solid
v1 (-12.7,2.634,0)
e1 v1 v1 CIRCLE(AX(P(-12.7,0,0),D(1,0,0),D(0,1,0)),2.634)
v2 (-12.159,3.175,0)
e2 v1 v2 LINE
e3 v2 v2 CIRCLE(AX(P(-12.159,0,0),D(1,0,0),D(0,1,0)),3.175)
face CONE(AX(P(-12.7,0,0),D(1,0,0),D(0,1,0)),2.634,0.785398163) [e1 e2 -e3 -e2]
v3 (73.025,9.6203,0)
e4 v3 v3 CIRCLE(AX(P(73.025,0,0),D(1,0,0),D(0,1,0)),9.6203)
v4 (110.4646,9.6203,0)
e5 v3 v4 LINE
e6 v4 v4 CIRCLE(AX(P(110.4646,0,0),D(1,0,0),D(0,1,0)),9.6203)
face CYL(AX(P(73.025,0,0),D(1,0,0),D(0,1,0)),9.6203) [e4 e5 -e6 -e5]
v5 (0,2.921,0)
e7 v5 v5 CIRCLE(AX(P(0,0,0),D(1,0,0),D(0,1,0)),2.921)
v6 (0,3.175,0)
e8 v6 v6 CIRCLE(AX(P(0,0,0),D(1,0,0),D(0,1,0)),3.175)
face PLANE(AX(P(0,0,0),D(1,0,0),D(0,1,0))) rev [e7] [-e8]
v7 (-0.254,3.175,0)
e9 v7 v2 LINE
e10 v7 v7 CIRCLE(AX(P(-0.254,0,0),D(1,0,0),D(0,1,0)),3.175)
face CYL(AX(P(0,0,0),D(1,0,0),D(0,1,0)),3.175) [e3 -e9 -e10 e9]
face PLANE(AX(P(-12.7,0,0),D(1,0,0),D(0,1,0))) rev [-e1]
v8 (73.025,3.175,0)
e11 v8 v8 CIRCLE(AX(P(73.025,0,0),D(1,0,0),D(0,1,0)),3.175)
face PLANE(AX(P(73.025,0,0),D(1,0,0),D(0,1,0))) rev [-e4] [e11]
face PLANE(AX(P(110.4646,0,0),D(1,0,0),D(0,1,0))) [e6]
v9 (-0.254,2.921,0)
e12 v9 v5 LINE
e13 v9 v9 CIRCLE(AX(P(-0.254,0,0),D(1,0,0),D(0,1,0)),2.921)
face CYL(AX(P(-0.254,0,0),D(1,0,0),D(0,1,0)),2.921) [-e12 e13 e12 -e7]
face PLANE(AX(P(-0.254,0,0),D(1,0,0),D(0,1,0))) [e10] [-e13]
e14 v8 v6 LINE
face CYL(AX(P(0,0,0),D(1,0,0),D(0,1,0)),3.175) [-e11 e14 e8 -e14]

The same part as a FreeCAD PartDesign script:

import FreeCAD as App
import Part
import Sketcher
Q = App.Units.Quantity

doc = App.newDocument("Part")
body = doc.addObject("PartDesign::Body", "Body")

# Sketch on XY plane
sketch1 = doc.addObject("Sketcher::SketchObject", "Sketch")
body.addObject(sketch1)
sketch1.AttachmentSupport = (doc.XY_Plane, [""])
sketch1.MapMode = "FlatFace"
sketch1.addGeometry([
    Part.LineSegment(App.Vector(0, 0, 0), App.Vector(110.5, 0, 0)),  # 0
    Part.LineSegment(App.Vector(110.5, 0, 0), App.Vector(110.5, 9.6, 0)),  # 1
    Part.LineSegment(App.Vector(110.5, 9.6, 0), App.Vector(73, 9.6, 0)),  # 2
    Part.LineSegment(App.Vector(73, 9.6, 0), App.Vector(73, 3.2, 0)),  # 3
    Part.LineSegment(App.Vector(73, 3.2, 0), App.Vector(0, 3.2, 0)),  # 4
    Part.LineSegment(App.Vector(0, 3.2, 0), App.Vector(0, 0, 0)),  # 5
], False)
sketch1.addConstraint([
    Sketcher.Constraint("Coincident", 0, 2, 1, 1),
    Sketcher.Constraint("Coincident", 1, 2, 2, 1),
    Sketcher.Constraint("Coincident", 2, 2, 3, 1),
    Sketcher.Constraint("Coincident", 3, 2, 4, 1),
    Sketcher.Constraint("Coincident", 4, 2, 5, 1),
    Sketcher.Constraint("Coincident", 5, 2, 0, 1),
    Sketcher.Constraint("Horizontal", 0),
    Sketcher.Constraint("Vertical", 1),
    Sketcher.Constraint("Horizontal", 2),
    Sketcher.Constraint("Vertical", 3),
    Sketcher.Constraint("Horizontal", 4),
    Sketcher.Constraint("Vertical", 5),
    Sketcher.Constraint("Coincident", 5, 2, -1, 1),
    Sketcher.Constraint("DistanceX", 0, 1, 0, 2, Q("4.349 in")),
    Sketcher.Constraint("DistanceX", 2, 2, 2, 1, Q("1.474 in")),
    Sketcher.Constraint("DistanceY", 5, 2, 5, 1, Q("0.125 in")),
    Sketcher.Constraint("DistanceY", 1, 1, 1, 2, Q("9.6203 mm")),
])
revolution = doc.addObject("PartDesign::Revolution", "Revolution")
body.addObject(revolution)
revolution.Profile = sketch1
revolution.ReferenceAxis = (sketch1, ["H_Axis"])
revolution.Angle = 360

# Sketch on XY plane
sketch2 = doc.addObject("Sketcher::SketchObject", "Sketch001")
body.addObject(sketch2)
sketch2.AttachmentSupport = (doc.XY_Plane, [""])
sketch2.MapMode = "FlatFace"
sketch2.addGeometry([
    Part.LineSegment(App.Vector(-12.7, 0, 0), App.Vector(0, 0, 0)),  # 0
    Part.LineSegment(App.Vector(0, 0, 0), App.Vector(0, 3.2, 0)),  # 1
    Part.LineSegment(App.Vector(0, 3.2, 0), App.Vector(-12.2, 3.2, 0)),  # 2
    Part.LineSegment(App.Vector(-12.2, 3.2, 0), App.Vector(-12.7, 2.6, 0)),  # 3
    Part.LineSegment(App.Vector(-12.7, 2.6, 0), App.Vector(-12.7, 0, 0)),  # 4
], False)
sketch2.addConstraint([
    Sketcher.Constraint("Coincident", 0, 2, 1, 1),
    Sketcher.Constraint("Coincident", 1, 2, 2, 1),
    Sketcher.Constraint("Coincident", 2, 2, 3, 1),
    Sketcher.Constraint("Coincident", 3, 2, 4, 1),
    Sketcher.Constraint("Coincident", 4, 2, 0, 1),
    Sketcher.Constraint("Horizontal", 0),
    Sketcher.Constraint("Vertical", 1),
    Sketcher.Constraint("Horizontal", 2),
    Sketcher.Constraint("Vertical", 4),
    Sketcher.Constraint("Coincident", 0, 2, -1, 1),
    Sketcher.Constraint("DistanceX", 0, 1, 0, 2, Q("0.5 in")),
    Sketcher.Constraint("Angle", 3, Q("-135 deg")),
    Sketcher.Constraint("DistanceY", 1, 1, 1, 2, Q("0.125 in")),
    Sketcher.Constraint("DistanceX", 2, 2, 2, 1, Q("0.4787 in")),
])
revolution2 = doc.addObject("PartDesign::Revolution", "Revolution001")
body.addObject(revolution2)
revolution2.Profile = sketch2
revolution2.ReferenceAxis = (sketch2, ["H_Axis"])
revolution2.Angle = 360

# Sketch on XY plane
sketch3 = doc.addObject("Sketcher::SketchObject", "Sketch002")
body.addObject(sketch3)
sketch3.AttachmentSupport = (doc.XY_Plane, [""])
sketch3.MapMode = "FlatFace"
sketch3.addGeometry([
    Part.LineSegment(App.Vector(-0.25, 3.43, 0), App.Vector(-0.25, 2.92, 0)),
    Part.LineSegment(App.Vector(-0.25, 2.92, 0), App.Vector(0, 2.92, 0)),
    Part.LineSegment(App.Vector(0, 2.92, 0), App.Vector(0, 3.43, 0)),
    Part.LineSegment(App.Vector(0, 3.43, 0), App.Vector(-0.25, 3.43, 0)),
], False)
sketch3.addConstraint([
    Sketcher.Constraint("Coincident", 0, 2, 1, 1),
    Sketcher.Constraint("Coincident", 1, 2, 2, 1),
    Sketcher.Constraint("Coincident", 2, 2, 3, 1),
    Sketcher.Constraint("Coincident", 3, 2, 0, 1),
    Sketcher.Constraint("Vertical", 0),
    Sketcher.Constraint("Horizontal", 1),
    Sketcher.Constraint("Vertical", 2),
    Sketcher.Constraint("Horizontal", 3),
    Sketcher.Constraint("PointOnObject", 1, 2, -2),
    Sketcher.Constraint("DistanceX", 1, 1, 1, 2, Q("0.01 in")),
    Sketcher.Constraint("DistanceY", 0, 2, 0, 1, Q("0.02 in")),
    Sketcher.Constraint("DistanceY", -1, 1, 0, 2, Q("0.115 in")),
])
groove = doc.addObject("PartDesign::Groove", "Groove")
body.addObject(groove)
groove.Profile = sketch3
groove.ReferenceAxis = (sketch3, ["H_Axis"])
groove.Angle = 360

doc.recompute()
